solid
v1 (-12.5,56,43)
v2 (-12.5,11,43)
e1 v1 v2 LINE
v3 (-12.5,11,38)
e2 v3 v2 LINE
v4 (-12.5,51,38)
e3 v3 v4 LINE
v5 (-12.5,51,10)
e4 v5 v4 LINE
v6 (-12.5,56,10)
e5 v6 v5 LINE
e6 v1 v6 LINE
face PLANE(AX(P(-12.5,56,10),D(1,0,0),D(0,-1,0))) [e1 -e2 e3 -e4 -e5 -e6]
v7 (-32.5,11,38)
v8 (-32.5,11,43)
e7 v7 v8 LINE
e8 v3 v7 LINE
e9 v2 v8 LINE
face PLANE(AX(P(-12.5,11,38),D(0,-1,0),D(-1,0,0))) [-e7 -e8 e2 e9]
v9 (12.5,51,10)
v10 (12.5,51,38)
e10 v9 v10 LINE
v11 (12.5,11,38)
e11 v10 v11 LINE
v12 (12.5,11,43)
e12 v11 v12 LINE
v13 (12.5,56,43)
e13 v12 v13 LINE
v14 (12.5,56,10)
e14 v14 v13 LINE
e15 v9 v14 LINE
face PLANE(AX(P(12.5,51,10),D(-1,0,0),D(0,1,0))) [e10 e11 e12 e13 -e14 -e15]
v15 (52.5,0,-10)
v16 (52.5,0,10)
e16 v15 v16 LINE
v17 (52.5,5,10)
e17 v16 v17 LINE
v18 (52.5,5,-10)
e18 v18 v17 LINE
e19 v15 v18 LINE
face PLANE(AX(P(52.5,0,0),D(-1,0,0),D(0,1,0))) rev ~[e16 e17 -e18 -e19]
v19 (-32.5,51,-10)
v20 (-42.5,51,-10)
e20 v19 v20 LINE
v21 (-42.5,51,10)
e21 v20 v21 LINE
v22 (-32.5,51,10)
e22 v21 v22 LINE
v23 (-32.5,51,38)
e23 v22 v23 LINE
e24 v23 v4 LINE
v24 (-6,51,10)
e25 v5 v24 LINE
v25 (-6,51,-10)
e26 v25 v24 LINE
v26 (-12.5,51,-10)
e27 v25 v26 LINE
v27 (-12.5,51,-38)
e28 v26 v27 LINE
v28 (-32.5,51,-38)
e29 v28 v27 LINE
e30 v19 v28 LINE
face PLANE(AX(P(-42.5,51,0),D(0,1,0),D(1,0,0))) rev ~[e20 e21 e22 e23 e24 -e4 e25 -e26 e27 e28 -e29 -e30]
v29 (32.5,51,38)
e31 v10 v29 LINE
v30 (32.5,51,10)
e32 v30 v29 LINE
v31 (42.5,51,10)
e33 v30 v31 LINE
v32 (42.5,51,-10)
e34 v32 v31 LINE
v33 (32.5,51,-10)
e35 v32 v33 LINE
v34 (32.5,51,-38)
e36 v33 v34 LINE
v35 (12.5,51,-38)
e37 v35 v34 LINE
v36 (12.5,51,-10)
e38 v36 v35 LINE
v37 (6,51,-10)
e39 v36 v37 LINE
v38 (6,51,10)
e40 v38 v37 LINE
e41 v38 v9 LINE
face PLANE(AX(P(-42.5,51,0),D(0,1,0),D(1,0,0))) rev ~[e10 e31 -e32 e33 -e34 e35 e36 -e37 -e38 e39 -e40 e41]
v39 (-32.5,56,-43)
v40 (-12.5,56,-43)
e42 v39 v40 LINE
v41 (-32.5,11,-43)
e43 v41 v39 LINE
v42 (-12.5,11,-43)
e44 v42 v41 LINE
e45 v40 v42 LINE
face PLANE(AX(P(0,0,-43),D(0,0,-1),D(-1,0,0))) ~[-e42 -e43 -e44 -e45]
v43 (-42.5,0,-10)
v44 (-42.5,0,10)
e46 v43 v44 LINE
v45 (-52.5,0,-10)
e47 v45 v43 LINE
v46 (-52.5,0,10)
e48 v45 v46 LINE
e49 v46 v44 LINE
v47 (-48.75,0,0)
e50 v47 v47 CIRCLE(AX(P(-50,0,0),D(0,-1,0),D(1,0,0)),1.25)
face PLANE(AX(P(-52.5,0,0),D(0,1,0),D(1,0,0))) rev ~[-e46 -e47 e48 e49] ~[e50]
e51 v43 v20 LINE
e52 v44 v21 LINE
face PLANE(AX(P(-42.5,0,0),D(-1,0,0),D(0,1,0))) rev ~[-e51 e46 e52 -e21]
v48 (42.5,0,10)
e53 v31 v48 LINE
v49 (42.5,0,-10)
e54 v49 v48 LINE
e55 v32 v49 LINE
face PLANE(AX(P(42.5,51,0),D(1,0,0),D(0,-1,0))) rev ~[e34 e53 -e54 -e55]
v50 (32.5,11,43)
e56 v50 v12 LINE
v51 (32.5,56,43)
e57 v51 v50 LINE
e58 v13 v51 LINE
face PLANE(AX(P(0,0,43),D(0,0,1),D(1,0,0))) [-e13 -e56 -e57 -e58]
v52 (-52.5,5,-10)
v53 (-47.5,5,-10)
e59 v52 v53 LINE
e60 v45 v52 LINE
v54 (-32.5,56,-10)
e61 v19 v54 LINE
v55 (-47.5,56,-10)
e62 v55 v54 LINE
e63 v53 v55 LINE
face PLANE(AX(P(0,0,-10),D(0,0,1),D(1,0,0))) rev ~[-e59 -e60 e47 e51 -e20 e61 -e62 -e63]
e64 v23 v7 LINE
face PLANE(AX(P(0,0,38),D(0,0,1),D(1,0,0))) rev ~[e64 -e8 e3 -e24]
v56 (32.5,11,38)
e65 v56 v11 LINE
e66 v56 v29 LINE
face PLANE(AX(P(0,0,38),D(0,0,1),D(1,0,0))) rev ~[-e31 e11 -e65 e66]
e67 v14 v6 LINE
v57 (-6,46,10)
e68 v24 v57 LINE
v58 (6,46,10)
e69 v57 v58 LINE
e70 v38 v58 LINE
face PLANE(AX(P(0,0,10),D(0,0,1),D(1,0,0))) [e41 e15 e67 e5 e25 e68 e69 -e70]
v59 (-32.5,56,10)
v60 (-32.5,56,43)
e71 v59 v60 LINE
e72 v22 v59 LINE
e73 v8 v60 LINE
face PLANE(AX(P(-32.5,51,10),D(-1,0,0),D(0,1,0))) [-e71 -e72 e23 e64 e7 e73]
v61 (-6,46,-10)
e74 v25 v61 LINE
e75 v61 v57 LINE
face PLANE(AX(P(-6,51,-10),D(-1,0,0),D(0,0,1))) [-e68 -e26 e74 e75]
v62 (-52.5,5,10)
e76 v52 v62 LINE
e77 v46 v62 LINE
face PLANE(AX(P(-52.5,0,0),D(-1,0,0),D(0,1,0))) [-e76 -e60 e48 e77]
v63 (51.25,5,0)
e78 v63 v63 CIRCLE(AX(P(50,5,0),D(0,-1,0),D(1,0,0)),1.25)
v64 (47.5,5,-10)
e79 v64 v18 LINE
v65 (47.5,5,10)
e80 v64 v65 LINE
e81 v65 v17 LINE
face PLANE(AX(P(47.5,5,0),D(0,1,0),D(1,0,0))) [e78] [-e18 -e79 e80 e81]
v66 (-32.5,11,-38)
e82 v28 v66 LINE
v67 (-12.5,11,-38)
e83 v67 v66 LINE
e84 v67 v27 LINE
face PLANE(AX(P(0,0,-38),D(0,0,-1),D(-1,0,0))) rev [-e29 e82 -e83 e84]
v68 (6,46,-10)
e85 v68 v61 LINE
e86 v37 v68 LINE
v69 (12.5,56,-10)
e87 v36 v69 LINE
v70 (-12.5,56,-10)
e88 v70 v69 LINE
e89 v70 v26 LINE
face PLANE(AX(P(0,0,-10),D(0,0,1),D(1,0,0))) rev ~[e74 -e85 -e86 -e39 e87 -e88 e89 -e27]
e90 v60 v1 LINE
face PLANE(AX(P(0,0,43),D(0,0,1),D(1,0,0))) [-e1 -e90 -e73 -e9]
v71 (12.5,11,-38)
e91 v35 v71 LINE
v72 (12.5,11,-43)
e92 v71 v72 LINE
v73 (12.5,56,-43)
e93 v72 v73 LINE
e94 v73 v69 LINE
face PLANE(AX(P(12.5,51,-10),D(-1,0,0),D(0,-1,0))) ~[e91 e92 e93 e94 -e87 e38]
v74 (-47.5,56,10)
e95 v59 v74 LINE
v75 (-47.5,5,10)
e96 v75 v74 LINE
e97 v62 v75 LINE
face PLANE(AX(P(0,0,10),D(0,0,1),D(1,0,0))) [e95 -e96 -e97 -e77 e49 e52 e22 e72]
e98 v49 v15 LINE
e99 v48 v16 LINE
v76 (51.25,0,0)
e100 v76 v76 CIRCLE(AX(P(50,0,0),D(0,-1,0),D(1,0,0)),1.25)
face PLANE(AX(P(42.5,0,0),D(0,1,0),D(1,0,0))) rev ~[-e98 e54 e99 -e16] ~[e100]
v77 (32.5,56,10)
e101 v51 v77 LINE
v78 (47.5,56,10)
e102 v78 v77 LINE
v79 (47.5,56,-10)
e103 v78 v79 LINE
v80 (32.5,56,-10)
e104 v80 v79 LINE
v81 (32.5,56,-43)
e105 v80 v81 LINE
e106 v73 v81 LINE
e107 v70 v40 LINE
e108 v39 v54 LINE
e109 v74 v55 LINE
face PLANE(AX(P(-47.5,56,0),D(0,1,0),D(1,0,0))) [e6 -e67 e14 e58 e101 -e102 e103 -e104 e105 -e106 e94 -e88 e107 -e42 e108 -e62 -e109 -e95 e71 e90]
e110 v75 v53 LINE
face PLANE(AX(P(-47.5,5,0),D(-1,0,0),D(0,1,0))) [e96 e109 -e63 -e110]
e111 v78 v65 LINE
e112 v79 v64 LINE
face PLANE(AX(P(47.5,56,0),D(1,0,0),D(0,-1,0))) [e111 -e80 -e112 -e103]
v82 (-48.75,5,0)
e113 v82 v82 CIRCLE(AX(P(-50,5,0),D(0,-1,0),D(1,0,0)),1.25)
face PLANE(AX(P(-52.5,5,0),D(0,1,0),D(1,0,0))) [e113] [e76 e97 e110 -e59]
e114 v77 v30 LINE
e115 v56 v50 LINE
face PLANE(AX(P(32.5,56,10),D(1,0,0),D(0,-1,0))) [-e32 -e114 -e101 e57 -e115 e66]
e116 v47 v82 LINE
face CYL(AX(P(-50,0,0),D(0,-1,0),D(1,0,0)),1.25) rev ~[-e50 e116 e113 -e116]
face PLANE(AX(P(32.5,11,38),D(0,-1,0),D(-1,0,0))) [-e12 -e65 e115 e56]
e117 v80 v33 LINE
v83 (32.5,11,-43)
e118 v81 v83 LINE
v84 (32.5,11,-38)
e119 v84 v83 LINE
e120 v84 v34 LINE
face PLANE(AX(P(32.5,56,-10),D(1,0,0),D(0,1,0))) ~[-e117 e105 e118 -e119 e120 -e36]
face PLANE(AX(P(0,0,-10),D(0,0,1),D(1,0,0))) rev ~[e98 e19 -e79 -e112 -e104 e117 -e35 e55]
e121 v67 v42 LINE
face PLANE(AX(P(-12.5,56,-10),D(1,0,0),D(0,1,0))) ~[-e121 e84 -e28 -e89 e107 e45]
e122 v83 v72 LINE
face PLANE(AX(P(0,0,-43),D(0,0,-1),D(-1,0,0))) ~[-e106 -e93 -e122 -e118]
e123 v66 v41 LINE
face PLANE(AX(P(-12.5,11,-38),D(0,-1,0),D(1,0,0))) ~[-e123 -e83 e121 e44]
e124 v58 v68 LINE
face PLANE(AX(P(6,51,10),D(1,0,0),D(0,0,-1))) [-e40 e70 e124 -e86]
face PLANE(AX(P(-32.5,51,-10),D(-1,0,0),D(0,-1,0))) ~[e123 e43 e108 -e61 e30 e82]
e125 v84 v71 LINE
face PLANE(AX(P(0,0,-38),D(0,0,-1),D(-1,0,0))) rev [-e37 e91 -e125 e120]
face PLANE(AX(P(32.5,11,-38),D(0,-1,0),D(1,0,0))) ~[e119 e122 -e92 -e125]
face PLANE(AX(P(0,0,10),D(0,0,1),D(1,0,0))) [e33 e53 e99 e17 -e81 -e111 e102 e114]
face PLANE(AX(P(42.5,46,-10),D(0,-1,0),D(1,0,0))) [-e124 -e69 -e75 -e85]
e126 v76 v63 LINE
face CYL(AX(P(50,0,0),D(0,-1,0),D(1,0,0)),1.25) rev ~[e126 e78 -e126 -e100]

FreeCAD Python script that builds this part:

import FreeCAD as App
import Part
import Sketcher

V = App.Vector
Q = App.Units.Quantity


def add_polygon(sketch, points):
    """Adds a closed chain of lines whose ends are joined by coincident constraints."""
    first, n = sketch.GeometryCount, len(points)
    for a, b in zip(points, points[1:] + points[:1]):
        sketch.addGeometry(Part.LineSegment(App.Vector(*a, 0), App.Vector(*b, 0)), False)
    for i in range(n):
        sketch.addConstraint(Sketcher.Constraint("Coincident", first + i, 2, first + (i + 1) % n, 1))

doc = App.newDocument("Part")
body = doc.addObject("PartDesign::Body", "Body")

sketch1 = doc.addObject("Sketcher::SketchObject", "Sketch")
body.addObject(sketch1)
sketch1.AttachmentSupport = (doc.XY_Plane, [""])
sketch1.MapMode = "FlatFace"
add_polygon(sketch1, [(-48, 5), (-52, 5), (-52, 0), (-42, 0), (-42, 51), (42, 51), (42, 0), (52, 0), (52, 5), (48, 5), (48, 56), (-48, 56)])
sketch1.addConstraint(Sketcher.Constraint("Horizontal", 0))
sketch1.addConstraint(Sketcher.Constraint("Vertical", 1))
sketch1.addConstraint(Sketcher.Constraint("Horizontal", 2))
sketch1.addConstraint(Sketcher.Constraint("Vertical", 3))
sketch1.addConstraint(Sketcher.Constraint("Horizontal", 4))
sketch1.addConstraint(Sketcher.Constraint("Vertical", 5))
sketch1.addConstraint(Sketcher.Constraint("Horizontal", 6))
sketch1.addConstraint(Sketcher.Constraint("Vertical", 7))
sketch1.addConstraint(Sketcher.Constraint("Horizontal", 8))
sketch1.addConstraint(Sketcher.Constraint("Vertical", 9))
sketch1.addConstraint(Sketcher.Constraint("Horizontal", 10))
sketch1.addConstraint(Sketcher.Constraint("Vertical", 11))
sketch1.addConstraint(Sketcher.Constraint("Symmetric", 2, 2, 5, 2, -1, 1))
sketch1.addConstraint(Sketcher.Constraint("Symmetric", 1, 2, 6, 2, -2))
sketch1.addConstraint(Sketcher.Constraint("Symmetric", 8, 2, 11, 2, -2))
sketch1.addConstraint(Sketcher.Constraint("Equal", 8, 1))
sketch1.addConstraint(Sketcher.Constraint("Equal", 5, 9))
sketch1.addConstraint(Sketcher.Constraint("DistanceX", 0, 2, 0, 1, Q("5 mm")))
sketch1.addConstraint(Sketcher.Constraint("DistanceX", 4, 1, 4, 2, Q("85 mm")))
sketch1.addConstraint(Sketcher.Constraint("DistanceY", 3, 1, 3, 2, Q("51 mm")))
sketch1.addConstraint(Sketcher.Constraint("DistanceX", 1, 2, 6, 2, Q("105 mm")))
pad1 = doc.addObject("PartDesign::Pad", "Pad")
body.addObject(pad1)
pad1.Profile = sketch1
pad1.Length = 20
pad1.Midplane = True

sketch2 = doc.addObject("Sketcher::SketchObject", "Sketch001")
body.addObject(sketch2)
sketch2.AttachmentSupport = (doc.XZ_Plane, [""])
sketch2.MapMode = "FlatFace"
sketch2.addGeometry(Part.Circle(V(-50, 0, 0), V(0, 0, 1), 1.2), False)
sketch2.addGeometry(Part.Circle(V(50, 0, 0), V(0, 0, 1), 1.2), False)
sketch2.addConstraint(Sketcher.Constraint("Equal", 0, 1))
sketch2.addConstraint(Sketcher.Constraint("Symmetric", 0, 3, 1, 3, -1, 1))
sketch2.addConstraint(Sketcher.Constraint("PointOnObject", 0, 3, -1))
sketch2.addConstraint(Sketcher.Constraint("Diameter", 0, Q("2.5 mm")))
sketch2.addConstraint(Sketcher.Constraint("DistanceX", 0, 3, 1, 3, Q("100 mm")))
pocket1 = doc.addObject("PartDesign::Pocket", "Pocket")
body.addObject(pocket1)
pocket1.Profile = sketch2
pocket1.Type = "ThroughAll"

sketch3 = doc.addObject("Sketcher::SketchObject", "Sketch002")
body.addObject(sketch3)
sketch3.AttachmentSupport = (doc.XY_Plane, [""])
sketch3.MapMode = "FlatFace"
sketch3.AttachmentOffset = App.Placement(V(0, 0, 10), App.Rotation())
add_polygon(sketch3, [(-12, 56), (-32, 56), (-32, 51), (-12, 51)])
add_polygon(sketch3, [(32, 56), (12, 56), (12, 51), (32, 51)])
sketch3.addConstraint(Sketcher.Constraint("Horizontal", 0))
sketch3.addConstraint(Sketcher.Constraint("Vertical", 1))
sketch3.addConstraint(Sketcher.Constraint("Horizontal", 2))
sketch3.addConstraint(Sketcher.Constraint("Vertical", 3))
sketch3.addConstraint(Sketcher.Constraint("Horizontal", 4))
sketch3.addConstraint(Sketcher.Constraint("Vertical", 5))
sketch3.addConstraint(Sketcher.Constraint("Horizontal", 6))
sketch3.addConstraint(Sketcher.Constraint("Vertical", 7))
sketch3.addConstraint(Sketcher.Constraint("Symmetric", 3, 2, 4, 2, -2))
sketch3.addConstraint(Sketcher.Constraint("Symmetric", 1, 2, 6, 2, -2))
sketch3.addConstraint(Sketcher.Constraint("DistanceX", 0, 2, 0, 1, Q("20 mm")))
sketch3.addConstraint(Sketcher.Constraint("DistanceY", 1, 2, 1, 1, Q("5 mm")))
sketch3.addConstraint(Sketcher.Constraint("DistanceY", -1, 1, 1, 2, Q("51 mm")))
sketch3.addConstraint(Sketcher.Constraint("DistanceX", 3, 2, 4, 2, Q("25 mm")))
pad2 = doc.addObject("PartDesign::Pad", "Pad001")
body.addObject(pad2)
pad2.Profile = sketch3
pad2.Length = 28

sketch4 = doc.addObject("Sketcher::SketchObject", "Sketch003")
body.addObject(sketch4)
sketch4.AttachmentSupport = (doc.XY_Plane, [""])
sketch4.MapMode = "FlatFace"
sketch4.AttachmentOffset = App.Placement(V(0, 0, 38), App.Rotation())
add_polygon(sketch4, [(-12, 56), (-32, 56), (-32, 11), (-12, 11)])
add_polygon(sketch4, [(32, 56), (12, 56), (12, 11), (32, 11)])
sketch4.addConstraint(Sketcher.Constraint("Horizontal", 0))
sketch4.addConstraint(Sketcher.Constraint("Vertical", 1))
sketch4.addConstraint(Sketcher.Constraint("Horizontal", 2))
sketch4.addConstraint(Sketcher.Constraint("Vertical", 3))
sketch4.addConstraint(Sketcher.Constraint("Horizontal", 4))
sketch4.addConstraint(Sketcher.Constraint("Vertical", 5))
sketch4.addConstraint(Sketcher.Constraint("Horizontal", 6))
sketch4.addConstraint(Sketcher.Constraint("Vertical", 7))
sketch4.addConstraint(Sketcher.Constraint("Symmetric", 3, 2, 4, 2, -2))
sketch4.addConstraint(Sketcher.Constraint("Symmetric", 1, 2, 6, 2, -2))
sketch4.addConstraint(Sketcher.Constraint("DistanceX", 0, 2, 0, 1, Q("20 mm")))
sketch4.addConstraint(Sketcher.Constraint("DistanceY", 1, 2, 1, 1, Q("45 mm")))
sketch4.addConstraint(Sketcher.Constraint("DistanceX", 3, 2, 4, 2, Q("25 mm")))
sketch4.addConstraint(Sketcher.Constraint("DistanceY", -1, 1, 0, 2, Q("56 mm")))
pad3 = doc.addObject("PartDesign::Pad", "Pad002")
body.addObject(pad3)
pad3.Profile = sketch4
pad3.Length = 5
doc.recompute()

mirrored = doc.addObject("PartDesign::Mirrored", "Mirrored")
body.addObject(mirrored)
mirrored.Originals = [pad3, pad2]
mirrored.MirrorPlane = (doc.XY_Plane, [""])
body.Tip = mirrored

sketch5 = doc.addObject("Sketcher::SketchObject", "Sketch004")
body.addObject(sketch5)
sketch5.AttachmentSupport = (doc.XZ_Plane, [""])
sketch5.MapMode = "FlatFace"
sketch5.AttachmentOffset = App.Placement(V(0, 0, -51), App.Rotation())
add_polygon(sketch5, [(6, 10), (-6, 10), (-6, -10), (6, -10)])
sketch5.addConstraint(Sketcher.Constraint("Horizontal", 0))
sketch5.addConstraint(Sketcher.Constraint("Vertical", 1))
sketch5.addConstraint(Sketcher.Constraint("Horizontal", 2))
sketch5.addConstraint(Sketcher.Constraint("Vertical", 3))
sketch5.addConstraint(Sketcher.Constraint("Symmetric", 0, 2, 2, 2, -1, 1))
sketch5.addConstraint(Sketcher.Constraint("DistanceX", 0, 2, 0, 1, Q("12 mm")))
sketch5.addConstraint(Sketcher.Constraint("DistanceY", 1, 2, 1, 1, Q("20 mm")))
pad4 = doc.addObject("PartDesign::Pad", "Pad003")
body.addObject(pad4)
pad4.Profile = sketch5
pad4.Length = 5

doc.recompute()
